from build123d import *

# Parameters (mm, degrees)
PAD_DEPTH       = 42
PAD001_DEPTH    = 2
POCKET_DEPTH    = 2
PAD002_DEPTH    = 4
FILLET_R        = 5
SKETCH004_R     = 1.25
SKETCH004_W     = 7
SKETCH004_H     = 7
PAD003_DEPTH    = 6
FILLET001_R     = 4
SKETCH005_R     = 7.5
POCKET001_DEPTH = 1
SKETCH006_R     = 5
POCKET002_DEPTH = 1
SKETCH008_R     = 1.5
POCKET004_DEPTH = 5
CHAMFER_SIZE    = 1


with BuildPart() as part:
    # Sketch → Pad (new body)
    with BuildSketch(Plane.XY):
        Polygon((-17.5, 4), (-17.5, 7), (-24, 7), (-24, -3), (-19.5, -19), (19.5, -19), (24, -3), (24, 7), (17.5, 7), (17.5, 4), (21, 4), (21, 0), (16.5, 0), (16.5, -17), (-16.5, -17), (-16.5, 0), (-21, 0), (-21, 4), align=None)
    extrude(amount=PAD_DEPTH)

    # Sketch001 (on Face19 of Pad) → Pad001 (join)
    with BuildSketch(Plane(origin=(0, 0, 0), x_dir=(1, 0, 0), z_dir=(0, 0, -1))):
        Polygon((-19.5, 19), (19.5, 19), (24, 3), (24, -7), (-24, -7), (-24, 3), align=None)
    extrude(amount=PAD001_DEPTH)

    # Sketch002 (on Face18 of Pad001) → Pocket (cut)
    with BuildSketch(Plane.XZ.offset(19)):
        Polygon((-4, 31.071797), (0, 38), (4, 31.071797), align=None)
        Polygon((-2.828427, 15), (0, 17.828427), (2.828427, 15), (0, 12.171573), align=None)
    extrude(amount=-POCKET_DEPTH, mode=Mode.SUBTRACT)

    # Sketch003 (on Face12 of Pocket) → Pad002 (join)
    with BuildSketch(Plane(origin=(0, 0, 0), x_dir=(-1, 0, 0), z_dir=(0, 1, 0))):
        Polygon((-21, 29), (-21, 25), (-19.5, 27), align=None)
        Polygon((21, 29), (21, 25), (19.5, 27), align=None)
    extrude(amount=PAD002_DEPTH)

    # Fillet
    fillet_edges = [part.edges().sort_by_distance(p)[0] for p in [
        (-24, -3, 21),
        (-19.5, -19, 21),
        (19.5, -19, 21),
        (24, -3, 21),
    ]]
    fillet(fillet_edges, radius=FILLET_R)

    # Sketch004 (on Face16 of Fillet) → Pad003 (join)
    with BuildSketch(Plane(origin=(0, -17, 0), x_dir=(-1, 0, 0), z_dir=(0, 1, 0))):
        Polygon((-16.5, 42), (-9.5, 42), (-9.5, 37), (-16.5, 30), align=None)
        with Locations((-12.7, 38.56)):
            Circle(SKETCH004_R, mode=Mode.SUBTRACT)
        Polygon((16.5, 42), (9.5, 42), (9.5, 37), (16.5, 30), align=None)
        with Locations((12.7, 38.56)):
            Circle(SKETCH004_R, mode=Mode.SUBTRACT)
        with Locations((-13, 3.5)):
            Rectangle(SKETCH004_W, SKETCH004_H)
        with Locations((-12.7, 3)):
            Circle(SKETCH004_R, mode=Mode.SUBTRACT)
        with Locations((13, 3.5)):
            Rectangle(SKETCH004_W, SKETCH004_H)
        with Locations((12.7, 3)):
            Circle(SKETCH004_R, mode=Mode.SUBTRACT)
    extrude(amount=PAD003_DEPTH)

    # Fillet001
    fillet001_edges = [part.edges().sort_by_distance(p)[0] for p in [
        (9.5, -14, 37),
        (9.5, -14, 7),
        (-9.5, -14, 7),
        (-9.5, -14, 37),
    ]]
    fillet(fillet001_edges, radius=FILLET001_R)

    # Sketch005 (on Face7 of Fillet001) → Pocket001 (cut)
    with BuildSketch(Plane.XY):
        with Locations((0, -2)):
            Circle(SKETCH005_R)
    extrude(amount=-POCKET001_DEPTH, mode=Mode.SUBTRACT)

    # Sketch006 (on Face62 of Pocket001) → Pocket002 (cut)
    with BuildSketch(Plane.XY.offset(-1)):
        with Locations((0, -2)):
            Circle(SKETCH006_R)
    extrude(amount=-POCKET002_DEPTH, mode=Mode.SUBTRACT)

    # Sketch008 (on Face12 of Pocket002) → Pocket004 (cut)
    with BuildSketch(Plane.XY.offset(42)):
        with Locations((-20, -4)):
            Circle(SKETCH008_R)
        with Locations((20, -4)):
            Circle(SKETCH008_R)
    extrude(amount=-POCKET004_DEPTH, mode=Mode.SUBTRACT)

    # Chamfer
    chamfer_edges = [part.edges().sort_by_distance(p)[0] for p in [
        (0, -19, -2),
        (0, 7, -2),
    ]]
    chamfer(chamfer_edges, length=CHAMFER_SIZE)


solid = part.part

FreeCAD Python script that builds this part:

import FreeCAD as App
import Part
import Sketcher

V = App.Vector
Q = App.Units.Quantity


def edges_at(feature, points):
    """Names of the edges that pass closest to the given points."""
    edges = feature.Shape.Edges
    near = lambda p: min(range(len(edges)), key=lambda i: edges[i].distToShape(Part.Vertex(*p))[0])
    return sorted({f"Edge{near(p) + 1}" for p in points})

doc = App.newDocument("Part")
body = doc.addObject("PartDesign::Body", "Body")

sketch1 = body.newObject("Sketcher::SketchObject", "Sketch")
sketch1.AttachmentSupport = (doc.getObject("XY_Plane"), [""])
sketch1.MapMode = "FlatFace"
sketch1.addGeometry([
    Part.LineSegment(V(-17.5, 4, 0), V(-17.5, 7, 0)),
    Part.LineSegment(V(-17.5, 7, 0), V(-24, 7, 0)),
    Part.LineSegment(V(-24, 7, 0), V(-24, -3, 0)),
    Part.LineSegment(V(-24, -3, 0), V(-19.5, -19, 0)),
    Part.LineSegment(V(-19.5, -19, 0), V(19.5, -19, 0)),
    Part.LineSegment(V(19.5, -19, 0), V(24, -3, 0)),
    Part.LineSegment(V(24, -3, 0), V(24, 7, 0)),
    Part.LineSegment(V(24, 7, 0), V(17.5, 7, 0)),
    Part.LineSegment(V(17.5, 7, 0), V(17.5, 4, 0)),
    Part.LineSegment(V(17.5, 4, 0), V(21, 4, 0)),
    Part.LineSegment(V(21, 4, 0), V(21, 0, 0)),
    Part.LineSegment(V(21, 0, 0), V(16.5, 0, 0)),
    Part.LineSegment(V(16.5, 0, 0), V(16.5, -17, 0)),
    Part.LineSegment(V(16.5, -17, 0), V(-16.5, -17, 0)),
    Part.LineSegment(V(-16.5, -17, 0), V(-16.5, 0, 0)),
    Part.LineSegment(V(-16.5, 0, 0), V(-21, 0, 0)),
    Part.LineSegment(V(-21, 0, 0), V(-21, 4, 0)),
    Part.LineSegment(V(-21, 4, 0), V(-17.5, 4, 0)),
], False)
sketch1.addConstraint([
    Sketcher.Constraint("Coincident", 0, 2, 1, 1),
    Sketcher.Constraint("Coincident", 1, 2, 2, 1),
    Sketcher.Constraint("Coincident", 2, 2, 3, 1),
    Sketcher.Constraint("Coincident", 3, 2, 4, 1),
    Sketcher.Constraint("Coincident", 4, 2, 5, 1),
    Sketcher.Constraint("Coincident", 5, 2, 6, 1),
    Sketcher.Constraint("Coincident", 6, 2, 7, 1),
    Sketcher.Constraint("Coincident", 7, 2, 8, 1),
    Sketcher.Constraint("Coincident", 8, 2, 9, 1),
    Sketcher.Constraint("Coincident", 9, 2, 10, 1),
    Sketcher.Constraint("Coincident", 10, 2, 11, 1),
    Sketcher.Constraint("Coincident", 11, 2, 12, 1),
    Sketcher.Constraint("Coincident", 12, 2, 13, 1),
    Sketcher.Constraint("Coincident", 13, 2, 14, 1),
    Sketcher.Constraint("Coincident", 14, 2, 15, 1),
    Sketcher.Constraint("Coincident", 15, 2, 16, 1),
    Sketcher.Constraint("Coincident", 16, 2, 17, 1),
    Sketcher.Constraint("Coincident", 17, 2, 0, 1),
    Sketcher.Constraint("Vertical", 0),
    Sketcher.Constraint("Horizontal", 1),
    Sketcher.Constraint("Vertical", 2),
    Sketcher.Constraint("Horizontal", 4),
    Sketcher.Constraint("Vertical", 6),
    Sketcher.Constraint("Horizontal", 7),
    Sketcher.Constraint("Vertical", 8),
    Sketcher.Constraint("Horizontal", 9),
    Sketcher.Constraint("Vertical", 10),
    Sketcher.Constraint("Horizontal", 11),
    Sketcher.Constraint("Vertical", 12),
    Sketcher.Constraint("Horizontal", 13),
    Sketcher.Constraint("Vertical", 14),
    Sketcher.Constraint("Horizontal", 15),
    Sketcher.Constraint("Vertical", 16),
    Sketcher.Constraint("Horizontal", 17),
    Sketcher.Constraint("Symmetric", 11, 2, 14, 2, -1, 1),
    Sketcher.Constraint("Symmetric", 2, 2, 5, 2, -2),
    Sketcher.Constraint("Symmetric", 0, 2, 7, 2, -2),
    Sketcher.Constraint("Symmetric", 10, 2, 15, 2, -2),
    Sketcher.Constraint("Horizontal", 9, 2, 16, 2),
    Sketcher.Constraint("Equal", 3, 5),
    Sketcher.Constraint("DistanceX", 4, 1, 4, 2, 39.0),
    Sketcher.Constraint("DistanceX", 13, 2, 13, 1, 33.0),
    Sketcher.Constraint("DistanceY", 0, 1, 0, 2, 3.0),
    Sketcher.Constraint("DistanceY", 2, 2, 2, 1, 10.0),
    Sketcher.Constraint("DistanceY", 10, 2, 10, 1, 4.0),
    Sketcher.Constraint("DistanceY", 12, 2, 12, 1, 17.0),
    Sketcher.Constraint("DistanceX", 1, 2, 1, 1, 6.5),
    Sketcher.Constraint("DistanceX", 9, 1, 9, 2, 3.5),
    Sketcher.Constraint("DistanceX", 11, 2, 11, 1, 4.5),
    Sketcher.Constraint("DistanceY", 3, 2, -1, 1, 19.0),
])
pad1 = body.newObject("PartDesign::Pad", "Pad")
pad1.Profile = sketch1
pad1.Length = 42

sketch2 = body.newObject("Sketcher::SketchObject", "Sketch001")
sketch2.AttachmentSupport = (doc.getObject("XY_Plane"), [""])
sketch2.MapMode = "FlatFace"
sketch2.addGeometry([
    Part.LineSegment(V(19.5, -19, 0), V(-19.5, -19, 0)),
    Part.LineSegment(V(-19.5, -19, 0), V(-24, -3, 0)),
    Part.LineSegment(V(-24, -3, 0), V(-24, 7, 0)),
    Part.LineSegment(V(-24, 7, 0), V(24, 7, 0)),
    Part.LineSegment(V(24, 7, 0), V(24, -3, 0)),
    Part.LineSegment(V(24, -3, 0), V(19.5, -19, 0)),
], False)
sketch2.addConstraint([
    Sketcher.Constraint("Coincident", 0, 2, 1, 1),
    Sketcher.Constraint("Coincident", 1, 2, 2, 1),
    Sketcher.Constraint("Coincident", 2, 2, 3, 1),
    Sketcher.Constraint("Coincident", 3, 2, 4, 1),
    Sketcher.Constraint("Coincident", 4, 2, 5, 1),
    Sketcher.Constraint("Coincident", 5, 2, 0, 1),
    Sketcher.Constraint("Horizontal", 0),
    Sketcher.Constraint("Vertical", 2),
    Sketcher.Constraint("Horizontal", 3),
    Sketcher.Constraint("Vertical", 4),
    Sketcher.Constraint("Symmetric", 1, 2, 4, 2, -2),
    Sketcher.Constraint("Equal", 1, 5),
    Sketcher.Constraint("DistanceX", 0, 2, 0, 1, 39.0),
    Sketcher.Constraint("DistanceX", 3, 1, 3, 2, 48.0),
    Sketcher.Constraint("DistanceY", 2, 1, 2, 2, 10.0),
    Sketcher.Constraint("DistanceY", 0, 2, -1, 1, 19.0),
    Sketcher.Constraint("DistanceY", 1, 2, -1, 1, 3.0),
])
pad2 = body.newObject("PartDesign::Pad", "Pad001")
pad2.Profile = sketch2
pad2.Length = 2
pad2.Reversed = True

sketch3 = body.newObject("Sketcher::SketchObject", "Sketch002")
sketch3.AttachmentSupport = (doc.getObject("XZ_Plane"), [""])
sketch3.MapMode = "FlatFace"
sketch3.AttachmentOffset = App.Placement(V(0, 0, 19), App.Rotation())
sketch3.addGeometry([
    Part.LineSegment(V(0, 38, 0), V(-4, 31.071797, 0)),
    Part.LineSegment(V(-4, 31.071797, 0), V(4, 31.071797, 0)),
    Part.LineSegment(V(4, 31.071797, 0), V(0, 38, 0)),
    Part.LineSegment(V(0, 17.828427, 0), V(-2.828427, 15, 0)),
    Part.LineSegment(V(-2.828427, 15, 0), V(0, 12.171573, 0)),
    Part.LineSegment(V(0, 12.171573, 0), V(2.828427, 15, 0)),
    Part.LineSegment(V(2.828427, 15, 0), V(0, 17.828427, 0)),
], False)
sketch3.addConstraint([
    Sketcher.Constraint("Coincident", 0, 2, 1, 1),
    Sketcher.Constraint("Coincident", 1, 2, 2, 1),
    Sketcher.Constraint("Coincident", 2, 2, 0, 1),
    Sketcher.Constraint("Coincident", 3, 2, 4, 1),
    Sketcher.Constraint("Coincident", 4, 2, 5, 1),
    Sketcher.Constraint("Coincident", 5, 2, 6, 1),
    Sketcher.Constraint("Coincident", 6, 2, 3, 1),
    Sketcher.Constraint("Horizontal", 1),
    Sketcher.Constraint("Symmetric", 3, 2, 5, 2, -2),
    Sketcher.Constraint("PointOnObject", 2, 2, -2),
    Sketcher.Constraint("PointOnObject", 4, 2, -2),
    Sketcher.Constraint("PointOnObject", 6, 2, -2),
    Sketcher.Constraint("Perpendicular", 3, 4),
    Sketcher.Constraint("Perpendicular", 4, 5),
    Sketcher.Constraint("Equal", 0, 2),
    Sketcher.Constraint("DistanceX", 1, 1, 1, 2, 8.0),
    Sketcher.Constraint("Angle", 0, Q("-120.000001 deg")),
    Sketcher.Constraint("Distance", 3, 4.0),
    Sketcher.Constraint("DistanceY", -1, 1, 2, 2, 38.0),
    Sketcher.Constraint("DistanceY", -1, 1, 3, 2, 15.0),
])
pocket1 = body.newObject("PartDesign::Pocket", "Pocket")
pocket1.Profile = sketch3
pocket1.Length = 2

sketch4 = body.newObject("Sketcher::SketchObject", "Sketch003")
sketch4.AttachmentSupport = (doc.getObject("XZ_Plane"), [""])
sketch4.MapMode = "FlatFace"
sketch4.addGeometry([
    Part.LineSegment(V(21, 29, 0), V(21, 25, 0)),
    Part.LineSegment(V(21, 25, 0), V(19.5, 27, 0)),
    Part.LineSegment(V(19.5, 27, 0), V(21, 29, 0)),
    Part.LineSegment(V(-21, 25, 0), V(-21, 29, 0)),
    Part.LineSegment(V(-21, 29, 0), V(-19.5, 27, 0)),
    Part.LineSegment(V(-19.5, 27, 0), V(-21, 25, 0)),
], False)
sketch4.addConstraint([
    Sketcher.Constraint("Coincident", 0, 2, 1, 1),
    Sketcher.Constraint("Coincident", 1, 2, 2, 1),
    Sketcher.Constraint("Coincident", 2, 2, 0, 1),
    Sketcher.Constraint("Coincident", 3, 2, 4, 1),
    Sketcher.Constraint("Coincident", 4, 2, 5, 1),
    Sketcher.Constraint("Coincident", 5, 2, 3, 1),
    Sketcher.Constraint("Vertical", 0),
    Sketcher.Constraint("Vertical", 3),
    Sketcher.Constraint("Symmetric", 2, 2, 3, 2, -2),
    Sketcher.Constraint("Symmetric", 1, 2, 4, 2, -2),
    Sketcher.Constraint("Parallel", 1, 4),
    Sketcher.Constraint("Parallel", 2, 5),
    Sketcher.Constraint("DistanceY", 0, 2, 0, 1, 4.0),
    Sketcher.Constraint("DistanceX", -1, 1, 0, 2, 21.0),
    Sketcher.Constraint("DistanceY", -1, 1, 0, 2, 25.0),
    Sketcher.Constraint("DistanceX", 4, 2, 1, 2, 39.0),
])
pad3 = body.newObject("PartDesign::Pad", "Pad002")
pad3.Profile = sketch4
pad3.Length = 4
pad3.Reversed = True
doc.recompute()

fillet = body.newObject("PartDesign::Fillet", "Fillet")
fillet.Base = (pad3, edges_at(pad3, [
    (-24, -3, 20),
    (-19.5, -19, 20),
    (19.5, -19, 20),
    (24, -3, 20),
]))
fillet.Radius = 5

sketch5 = body.newObject("Sketcher::SketchObject", "Sketch004")
sketch5.AttachmentSupport = (doc.getObject("XZ_Plane"), [""])
sketch5.MapMode = "FlatFace"
sketch5.AttachmentOffset = App.Placement(V(0, 0, 17), App.Rotation())
sketch5.addGeometry([
    Part.LineSegment(V(9.5, 42, 0), V(16.5, 42, 0)),
    Part.LineSegment(V(16.5, 42, 0), V(16.5, 30, 0)),
    Part.LineSegment(V(16.5, 30, 0), V(9.5, 37, 0)),
    Part.LineSegment(V(9.5, 37, 0), V(9.5, 42, 0)),
    Part.Circle(V(12.7, 38.56, 0), V(0, 0, 1), 1.25),
    Part.LineSegment(V(-16.5, 42, 0), V(-9.5, 42, 0)),
    Part.LineSegment(V(-9.5, 42, 0), V(-9.5, 37, 0)),
    Part.LineSegment(V(-9.5, 37, 0), V(-16.5, 30, 0)),
    Part.LineSegment(V(-16.5, 30, 0), V(-16.5, 42, 0)),
    Part.Circle(V(-12.7, 38.56, 0), V(0, 0, 1), 1.25),
    Part.LineSegment(V(16.5, 7, 0), V(16.5, 0, 0)),
    Part.LineSegment(V(16.5, 0, 0), V(9.5, 0, 0)),
    Part.LineSegment(V(9.5, 0, 0), V(9.5, 7, 0)),
    Part.LineSegment(V(9.5, 7, 0), V(16.5, 7, 0)),
    Part.Circle(V(12.7, 3, 0), V(0, 0, 1), 1.25),
    Part.LineSegment(V(-9.5, 7, 0), V(-9.5, 0, 0)),
    Part.LineSegment(V(-9.5, 0, 0), V(-16.5, 0, 0)),
    Part.LineSegment(V(-16.5, 0, 0), V(-16.5, 7, 0)),
    Part.LineSegment(V(-16.5, 7, 0), V(-9.5, 7, 0)),
    Part.Circle(V(-12.7, 3, 0), V(0, 0, 1), 1.25),
], False)
sketch5.addConstraint([
    Sketcher.Constraint("Coincident", 0, 2, 1, 1),
    Sketcher.Constraint("Coincident", 1, 2, 2, 1),
    Sketcher.Constraint("Coincident", 2, 2, 3, 1),
    Sketcher.Constraint("Coincident", 3, 2, 0, 1),
    Sketcher.Constraint("Coincident", 5, 2, 6, 1),
    Sketcher.Constraint("Coincident", 6, 2, 7, 1),
    Sketcher.Constraint("Coincident", 7, 2, 8, 1),
    Sketcher.Constraint("Coincident", 8, 2, 5, 1),
    Sketcher.Constraint("Coincident", 10, 2, 11, 1),
    Sketcher.Constraint("Coincident", 11, 2, 12, 1),
    Sketcher.Constraint("Coincident", 12, 2, 13, 1),
    Sketcher.Constraint("Coincident", 13, 2, 10, 1),
    Sketcher.Constraint("Coincident", 15, 2, 16, 1),
    Sketcher.Constraint("Coincident", 16, 2, 17, 1),
    Sketcher.Constraint("Coincident", 17, 2, 18, 1),
    Sketcher.Constraint("Coincident", 18, 2, 15, 1),
    Sketcher.Constraint("Horizontal", 0),
    Sketcher.Constraint("Vertical", 1),
    Sketcher.Constraint("Vertical", 3),
    Sketcher.Constraint("Horizontal", 5),
    Sketcher.Constraint("Vertical", 6),
    Sketcher.Constraint("Vertical", 8),
    Sketcher.Constraint("Vertical", 10),
    Sketcher.Constraint("Horizontal", 11),
    Sketcher.Constraint("Vertical", 12),
    Sketcher.Constraint("Horizontal", 13),
    Sketcher.Constraint("Vertical", 15),
    Sketcher.Constraint("Horizontal", 16),
    Sketcher.Constraint("Vertical", 17),
    Sketcher.Constraint("Horizontal", 18),
    Sketcher.Constraint("Equal", 4, 9),
    Sketcher.Constraint("Equal", 9, 14),
    Sketcher.Constraint("Equal", 14, 19),
    Sketcher.Constraint("Symmetric", 11, 2, 15, 2, -1, 1),
    Sketcher.Constraint("Symmetric", 4, 3, 9, 3, -2),
    Sketcher.Constraint("Symmetric", 14, 3, 19, 3, -2),
    Sketcher.Constraint("Symmetric", 3, 2, 5, 2, -2),
    Sketcher.Constraint("Symmetric", 1, 2, 7, 2, -2),
    Sketcher.Constraint("Symmetric", 10, 2, 16, 2, -2),
    Sketcher.Constraint("Perpendicular", 2, 7),
    Sketcher.Constraint("Horizontal", 2, 2, 6, 2),
    Sketcher.Constraint("Horizontal", 13, 2, 17, 2),
    Sketcher.Constraint("Vertical", 4, 3, 14, 3),
    Sketcher.Constraint("Vertical", 1, 2, 10, 2),
    Sketcher.Constraint("Vertical", 3, 2, 11, 2),
    Sketcher.Constraint("Equal", 18, 10),
    Sketcher.Constraint("Diameter", 4, 2.5),
    Sketcher.Constraint("DistanceX", 0, 1, 0, 2, 7.0),
    Sketcher.Constraint("DistanceY", 1, 2, 1, 1, 12.0),
    Sketcher.Constraint("DistanceY", -1, 1, 14, 3, 3.0),
    Sketcher.Constraint("DistanceY", -1, 1, 0, 2, 42.0),
    Sketcher.Constraint("DistanceX", 5, 2, 3, 2, 19.0),
    Sketcher.Constraint("DistanceX", -1, 1, 4, 3, 12.7),
    Sketcher.Constraint("DistanceY", -1, 1, 4, 3, 38.56),
])
pad4 = body.newObject("PartDesign::Pad", "Pad003")
pad4.Profile = sketch5
pad4.Length = 6
pad4.Reversed = True
doc.recompute()

fillet2 = body.newObject("PartDesign::Fillet", "Fillet001")
fillet2.Base = (pad4, edges_at(pad4, [
    (9.5, -14, 37),
    (9.5, -14, 7),
    (-9.5, -14, 7),
    (-9.5, -14, 37),
]))
fillet2.Radius = 4

sketch6 = body.newObject("Sketcher::SketchObject", "Sketch005")
sketch6.AttachmentSupport = (doc.getObject("XY_Plane"), [""])
sketch6.MapMode = "FlatFace"
sketch6.addGeometry(Part.Circle(V(0, -2, 0), V(0, 0, 1), 7.5), False)
sketch6.addConstraint([
    Sketcher.Constraint("PointOnObject", 0, 3, -2),
    Sketcher.Constraint("Diameter", 0, 15.0),
    Sketcher.Constraint("DistanceY", 0, 3, -1, 1, 2.0),
])
pocket2 = body.newObject("PartDesign::Pocket", "Pocket001")
pocket2.Profile = sketch6
pocket2.Length = 1

sketch7 = body.newObject("Sketcher::SketchObject", "Sketch006")
sketch7.AttachmentSupport = (doc.getObject("XY_Plane"), [""])
sketch7.MapMode = "FlatFace"
sketch7.AttachmentOffset = App.Placement(V(0, 0, -1), App.Rotation())
sketch7.addGeometry(Part.Circle(V(0, -2, 0), V(0, 0, 1), 5), False)
sketch7.addConstraint([
    Sketcher.Constraint("PointOnObject", 0, 3, -2),
    Sketcher.Constraint("Diameter", 0, 10.0),
    Sketcher.Constraint("DistanceY", 0, 3, -1, 1, 2.0),
])
pocket3 = body.newObject("PartDesign::Pocket", "Pocket002")
pocket3.Profile = sketch7
pocket3.Length = 1

sketch8 = body.newObject("Sketcher::SketchObject", "Sketch007")
sketch8.AttachmentSupport = (doc.getObject("XY_Plane"), [""])
sketch8.MapMode = "FlatFace"
sketch8.AttachmentOffset = App.Placement(V(0, 0, 42), App.Rotation())
sketch8.addGeometry([
    Part.Circle(V(-20, -4, 0), V(0, 0, 1), 1.5),
    Part.Circle(V(20, -4, 0), V(0, 0, 1), 1.5),
], False)
sketch8.addConstraint([
    Sketcher.Constraint("Equal", 0, 1),
    Sketcher.Constraint("Symmetric", 0, 3, 1, 3, -2),
    Sketcher.Constraint("Diameter", 0, 3.0),
    Sketcher.Constraint("DistanceX", 0, 3, -1, 1, 20.0),
    Sketcher.Constraint("DistanceY", 0, 3, -1, 1, 4.0),
])
pocket4 = body.newObject("PartDesign::Pocket", "Pocket003")
pocket4.Profile = sketch8
pocket4.Length = 5
doc.recompute()

chamfer = body.newObject("PartDesign::Chamfer", "Chamfer")
chamfer.Base = (pocket4, edges_at(pocket4, [(0, -19, -2), (0, 7, -2)]))
chamfer.Size = 1

doc.recompute()
